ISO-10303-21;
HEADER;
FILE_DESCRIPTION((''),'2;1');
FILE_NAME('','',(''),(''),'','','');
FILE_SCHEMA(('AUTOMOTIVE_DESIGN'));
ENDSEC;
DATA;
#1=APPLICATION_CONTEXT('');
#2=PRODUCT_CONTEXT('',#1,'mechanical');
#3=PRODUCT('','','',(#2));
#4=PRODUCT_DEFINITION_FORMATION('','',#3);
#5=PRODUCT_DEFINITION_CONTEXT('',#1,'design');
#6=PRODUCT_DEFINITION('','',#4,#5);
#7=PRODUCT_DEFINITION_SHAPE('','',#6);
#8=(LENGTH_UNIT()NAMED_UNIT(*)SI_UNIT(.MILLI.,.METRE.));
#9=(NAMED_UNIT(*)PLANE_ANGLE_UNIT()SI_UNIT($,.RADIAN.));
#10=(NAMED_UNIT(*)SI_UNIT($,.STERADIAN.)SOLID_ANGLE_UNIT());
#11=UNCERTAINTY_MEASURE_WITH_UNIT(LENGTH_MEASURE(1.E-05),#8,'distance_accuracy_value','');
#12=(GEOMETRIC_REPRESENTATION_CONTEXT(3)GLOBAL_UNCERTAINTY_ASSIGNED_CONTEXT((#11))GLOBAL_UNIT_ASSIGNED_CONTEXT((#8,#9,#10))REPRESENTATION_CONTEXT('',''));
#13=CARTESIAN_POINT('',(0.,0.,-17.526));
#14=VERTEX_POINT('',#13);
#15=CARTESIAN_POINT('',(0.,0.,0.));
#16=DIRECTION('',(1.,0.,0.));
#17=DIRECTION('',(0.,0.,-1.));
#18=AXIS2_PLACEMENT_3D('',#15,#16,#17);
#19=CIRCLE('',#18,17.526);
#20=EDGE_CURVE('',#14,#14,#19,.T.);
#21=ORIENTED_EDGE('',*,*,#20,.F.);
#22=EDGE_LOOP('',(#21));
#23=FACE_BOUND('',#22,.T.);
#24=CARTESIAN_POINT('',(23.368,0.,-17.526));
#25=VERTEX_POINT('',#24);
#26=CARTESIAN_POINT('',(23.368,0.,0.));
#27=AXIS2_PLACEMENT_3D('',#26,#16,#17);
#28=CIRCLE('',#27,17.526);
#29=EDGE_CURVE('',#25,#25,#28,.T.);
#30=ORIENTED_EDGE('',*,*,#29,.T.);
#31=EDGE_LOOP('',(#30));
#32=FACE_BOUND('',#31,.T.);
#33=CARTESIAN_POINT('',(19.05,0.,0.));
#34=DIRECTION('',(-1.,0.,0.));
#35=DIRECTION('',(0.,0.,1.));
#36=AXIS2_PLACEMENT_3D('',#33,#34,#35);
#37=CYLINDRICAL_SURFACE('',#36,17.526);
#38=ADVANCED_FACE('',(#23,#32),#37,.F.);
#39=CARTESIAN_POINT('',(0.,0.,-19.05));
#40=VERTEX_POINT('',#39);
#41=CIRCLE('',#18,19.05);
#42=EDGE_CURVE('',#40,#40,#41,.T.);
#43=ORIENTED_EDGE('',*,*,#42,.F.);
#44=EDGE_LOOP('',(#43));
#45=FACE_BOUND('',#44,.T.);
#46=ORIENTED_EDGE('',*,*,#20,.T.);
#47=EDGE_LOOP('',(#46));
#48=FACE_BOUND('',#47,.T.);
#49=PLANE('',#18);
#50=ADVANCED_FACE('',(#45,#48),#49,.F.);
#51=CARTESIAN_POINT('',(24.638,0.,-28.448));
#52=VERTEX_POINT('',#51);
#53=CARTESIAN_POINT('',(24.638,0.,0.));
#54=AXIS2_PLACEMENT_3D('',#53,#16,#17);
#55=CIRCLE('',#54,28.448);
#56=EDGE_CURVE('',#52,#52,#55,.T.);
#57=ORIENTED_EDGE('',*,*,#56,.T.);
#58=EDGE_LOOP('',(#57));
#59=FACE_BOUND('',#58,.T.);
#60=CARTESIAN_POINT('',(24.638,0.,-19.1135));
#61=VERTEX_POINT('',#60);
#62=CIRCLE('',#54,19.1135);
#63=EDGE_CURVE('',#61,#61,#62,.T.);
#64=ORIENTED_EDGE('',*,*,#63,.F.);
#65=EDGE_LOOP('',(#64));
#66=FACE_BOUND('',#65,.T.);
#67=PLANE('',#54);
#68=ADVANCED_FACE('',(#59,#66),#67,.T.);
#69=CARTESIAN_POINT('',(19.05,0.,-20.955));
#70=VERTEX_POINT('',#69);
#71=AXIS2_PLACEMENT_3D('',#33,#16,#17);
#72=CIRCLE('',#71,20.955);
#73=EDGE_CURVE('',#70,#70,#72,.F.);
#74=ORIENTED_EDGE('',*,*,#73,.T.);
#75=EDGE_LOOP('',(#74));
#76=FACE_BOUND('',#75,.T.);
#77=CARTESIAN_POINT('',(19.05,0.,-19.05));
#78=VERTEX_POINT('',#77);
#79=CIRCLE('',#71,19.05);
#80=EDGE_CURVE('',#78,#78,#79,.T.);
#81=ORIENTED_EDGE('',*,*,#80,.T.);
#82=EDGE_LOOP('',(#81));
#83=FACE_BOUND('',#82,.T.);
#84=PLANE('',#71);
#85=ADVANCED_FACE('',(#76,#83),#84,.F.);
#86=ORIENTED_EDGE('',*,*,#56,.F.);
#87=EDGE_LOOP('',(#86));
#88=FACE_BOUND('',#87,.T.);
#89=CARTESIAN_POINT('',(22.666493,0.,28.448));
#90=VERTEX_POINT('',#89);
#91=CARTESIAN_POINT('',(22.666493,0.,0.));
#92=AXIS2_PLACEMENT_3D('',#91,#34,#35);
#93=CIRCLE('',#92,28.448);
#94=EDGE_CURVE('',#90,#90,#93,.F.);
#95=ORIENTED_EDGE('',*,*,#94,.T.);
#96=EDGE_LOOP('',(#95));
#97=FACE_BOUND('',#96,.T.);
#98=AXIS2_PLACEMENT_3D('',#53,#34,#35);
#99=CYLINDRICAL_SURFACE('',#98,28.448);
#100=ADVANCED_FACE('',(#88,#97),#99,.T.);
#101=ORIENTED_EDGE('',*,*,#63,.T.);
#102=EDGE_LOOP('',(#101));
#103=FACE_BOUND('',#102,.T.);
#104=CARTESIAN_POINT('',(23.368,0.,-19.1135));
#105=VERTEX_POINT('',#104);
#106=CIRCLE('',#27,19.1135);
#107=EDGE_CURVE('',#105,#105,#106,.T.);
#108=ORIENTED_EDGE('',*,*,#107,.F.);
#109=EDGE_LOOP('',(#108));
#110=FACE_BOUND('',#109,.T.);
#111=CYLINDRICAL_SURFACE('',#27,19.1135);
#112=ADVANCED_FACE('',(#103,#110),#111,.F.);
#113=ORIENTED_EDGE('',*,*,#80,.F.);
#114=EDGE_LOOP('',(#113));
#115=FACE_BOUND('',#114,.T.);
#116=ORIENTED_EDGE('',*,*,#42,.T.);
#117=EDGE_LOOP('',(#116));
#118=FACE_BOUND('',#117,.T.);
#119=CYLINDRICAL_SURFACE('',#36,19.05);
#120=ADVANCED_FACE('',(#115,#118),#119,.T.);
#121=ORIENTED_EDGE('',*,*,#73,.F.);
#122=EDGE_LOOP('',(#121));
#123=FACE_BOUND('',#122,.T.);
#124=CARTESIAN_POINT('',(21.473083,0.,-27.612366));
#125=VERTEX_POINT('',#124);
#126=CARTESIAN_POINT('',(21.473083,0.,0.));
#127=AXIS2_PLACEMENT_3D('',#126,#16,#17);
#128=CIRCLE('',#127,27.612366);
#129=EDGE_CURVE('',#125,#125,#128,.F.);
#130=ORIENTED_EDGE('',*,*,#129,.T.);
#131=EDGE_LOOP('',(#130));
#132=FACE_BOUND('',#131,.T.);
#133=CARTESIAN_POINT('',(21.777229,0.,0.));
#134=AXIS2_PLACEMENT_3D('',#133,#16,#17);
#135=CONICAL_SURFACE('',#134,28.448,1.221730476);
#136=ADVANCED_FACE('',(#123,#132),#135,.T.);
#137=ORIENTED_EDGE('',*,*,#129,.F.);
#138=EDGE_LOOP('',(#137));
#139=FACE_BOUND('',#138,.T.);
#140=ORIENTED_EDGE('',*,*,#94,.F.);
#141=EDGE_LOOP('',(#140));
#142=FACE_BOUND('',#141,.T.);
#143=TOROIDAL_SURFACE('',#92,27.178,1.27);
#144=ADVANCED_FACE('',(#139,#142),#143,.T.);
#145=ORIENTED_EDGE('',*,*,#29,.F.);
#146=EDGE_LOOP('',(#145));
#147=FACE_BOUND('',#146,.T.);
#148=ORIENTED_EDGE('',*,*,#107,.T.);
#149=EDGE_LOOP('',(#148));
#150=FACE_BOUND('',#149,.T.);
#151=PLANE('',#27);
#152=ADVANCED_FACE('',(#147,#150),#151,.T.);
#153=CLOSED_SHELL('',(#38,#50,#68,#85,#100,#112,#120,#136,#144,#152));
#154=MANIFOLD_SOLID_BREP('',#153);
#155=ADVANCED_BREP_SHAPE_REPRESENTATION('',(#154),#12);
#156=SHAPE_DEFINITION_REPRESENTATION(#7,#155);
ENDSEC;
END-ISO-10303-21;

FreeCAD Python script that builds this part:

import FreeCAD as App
import Part
import Sketcher
Q = App.Units.Quantity


def edges_at(feature, points):
    """Names of the edges that pass closest to the given points."""
    edges = feature.Shape.Edges
    near = lambda p: min(range(len(edges)), key=lambda i: edges[i].distToShape(Part.Vertex(*p))[0])
    return sorted({f"Edge{near(p) + 1}" for p in points})

doc = App.newDocument("Part")
body = doc.addObject("PartDesign::Body", "Body")

# Sketch on YZ plane
sketch1 = doc.addObject("Sketcher::SketchObject", "Sketch")
body.addObject(sketch1)
sketch1.AttachmentSupport = (doc.YZ_Plane, [""])
sketch1.MapMode = "FlatFace"
sketch1.addGeometry(Part.Circle(App.Vector(0, 0, 0), App.Vector(0, 0, 1), 19.05), False)
sketch1.addGeometry(Part.Circle(App.Vector(0, 0, 0), App.Vector(0, 0, 1), 17.526), False)
sketch1.addConstraint(Sketcher.Constraint("Coincident", 0, 3, -1, 1))
sketch1.addConstraint(Sketcher.Constraint("Coincident", 1, 3, -1, 1))
sketch1.addConstraint(Sketcher.Constraint("Diameter", 0, Q("1.5 in")))
sketch1.addConstraint(Sketcher.Constraint("Diameter", 1, Q("1.38 in")))
pad1 = doc.addObject("PartDesign::Pad", "Pad")
body.addObject(pad1)
pad1.Profile = sketch1
pad1.Length = Q("0.75 in")

# Sketch on YZ plane
sketch2 = doc.addObject("Sketcher::SketchObject", "Sketch001")
body.addObject(sketch2)
sketch2.AttachmentSupport = (doc.YZ_Plane, [""])
sketch2.MapMode = "FlatFace"
sketch2.AttachmentOffset = App.Placement(App.Vector(0, 0, 0.75 * 25.4), App.Rotation())
sketch2.addGeometry(Part.Circle(App.Vector(0, 0, 0), App.Vector(0, 0, 1), 28.448), False)
sketch2.addConstraint(Sketcher.Constraint("Coincident", 0, 3, -1, 1))
sketch2.addConstraint(Sketcher.Constraint("Diameter", 0, Q("2.24 in")))
pad2 = doc.addObject("PartDesign::Pad", "Pad001")
body.addObject(pad2)
pad2.Profile = sketch2
pad2.Length = Q("0.22 in")
doc.recompute()

chamfer = doc.addObject("PartDesign::Chamfer", "Chamfer")
body.addObject(chamfer)
chamfer.Base = (pad2, edges_at(pad2, [(19.05, 0, 28.448)]))
chamfer.ChamferType = "Two distances"
chamfer.Size = Q("0.295 in")
chamfer.Size2 = 2.727229
doc.recompute()

fillet = doc.addObject("PartDesign::Fillet", "Fillet")
body.addObject(fillet)
fillet.Base = (chamfer, edges_at(chamfer, [(21.777, 0, 28.448)]))
fillet.Radius = Q("0.05 in")

# Sketch on YZ plane
sketch3 = doc.addObject("Sketcher::SketchObject", "Sketch002")
body.addObject(sketch3)
sketch3.AttachmentSupport = (doc.YZ_Plane, [""])
sketch3.MapMode = "FlatFace"
sketch3.AttachmentOffset = App.Placement(App.Vector(0, 0, 0.75 * 25.4), App.Rotation())
sketch3.addGeometry(Part.Circle(App.Vector(0, 0, 0), App.Vector(0, 0, 1), 17.526), False)
sketch3.addConstraint(Sketcher.Constraint("Coincident", 0, 3, -1, 1))
sketch3.addConstraint(Sketcher.Constraint("Diameter", 0, Q("1.38 in")))
pocket1 = doc.addObject("PartDesign::Pocket", "Pocket")
body.addObject(pocket1)
pocket1.Profile = sketch3
pocket1.Type = "ThroughAll"
pocket1.Reversed = True

# Sketch on YZ plane
sketch4 = doc.addObject("Sketcher::SketchObject", "Sketch003")
body.addObject(sketch4)
sketch4.AttachmentSupport = (doc.YZ_Plane, [""])
sketch4.MapMode = "FlatFace"
sketch4.AttachmentOffset = App.Placement(App.Vector(0, 0, 0.97 * 25.4), App.Rotation())
sketch4.addGeometry(Part.Circle(App.Vector(0, 0, 0), App.Vector(0, 0, 1), 19.1135), False)
sketch4.addGeometry(Part.Circle(App.Vector(0, 0, 0), App.Vector(0, 0, 1), 17.526), False)
sketch4.addConstraint(Sketcher.Constraint("Coincident", 0, 3, -1, 1))
sketch4.addConstraint(Sketcher.Constraint("Coincident", 1, 3, -1, 1))
sketch4.addConstraint(Sketcher.Constraint("Diameter", 1, Q("1.38 in")))
sketch4.addConstraint(Sketcher.Constraint("Diameter", 0, Q("1.505 in")))
pocket2 = doc.addObject("PartDesign::Pocket", "Pocket001")
body.addObject(pocket2)
pocket2.Profile = sketch4
pocket2.Length = Q("0.05 in")

doc.recompute()
